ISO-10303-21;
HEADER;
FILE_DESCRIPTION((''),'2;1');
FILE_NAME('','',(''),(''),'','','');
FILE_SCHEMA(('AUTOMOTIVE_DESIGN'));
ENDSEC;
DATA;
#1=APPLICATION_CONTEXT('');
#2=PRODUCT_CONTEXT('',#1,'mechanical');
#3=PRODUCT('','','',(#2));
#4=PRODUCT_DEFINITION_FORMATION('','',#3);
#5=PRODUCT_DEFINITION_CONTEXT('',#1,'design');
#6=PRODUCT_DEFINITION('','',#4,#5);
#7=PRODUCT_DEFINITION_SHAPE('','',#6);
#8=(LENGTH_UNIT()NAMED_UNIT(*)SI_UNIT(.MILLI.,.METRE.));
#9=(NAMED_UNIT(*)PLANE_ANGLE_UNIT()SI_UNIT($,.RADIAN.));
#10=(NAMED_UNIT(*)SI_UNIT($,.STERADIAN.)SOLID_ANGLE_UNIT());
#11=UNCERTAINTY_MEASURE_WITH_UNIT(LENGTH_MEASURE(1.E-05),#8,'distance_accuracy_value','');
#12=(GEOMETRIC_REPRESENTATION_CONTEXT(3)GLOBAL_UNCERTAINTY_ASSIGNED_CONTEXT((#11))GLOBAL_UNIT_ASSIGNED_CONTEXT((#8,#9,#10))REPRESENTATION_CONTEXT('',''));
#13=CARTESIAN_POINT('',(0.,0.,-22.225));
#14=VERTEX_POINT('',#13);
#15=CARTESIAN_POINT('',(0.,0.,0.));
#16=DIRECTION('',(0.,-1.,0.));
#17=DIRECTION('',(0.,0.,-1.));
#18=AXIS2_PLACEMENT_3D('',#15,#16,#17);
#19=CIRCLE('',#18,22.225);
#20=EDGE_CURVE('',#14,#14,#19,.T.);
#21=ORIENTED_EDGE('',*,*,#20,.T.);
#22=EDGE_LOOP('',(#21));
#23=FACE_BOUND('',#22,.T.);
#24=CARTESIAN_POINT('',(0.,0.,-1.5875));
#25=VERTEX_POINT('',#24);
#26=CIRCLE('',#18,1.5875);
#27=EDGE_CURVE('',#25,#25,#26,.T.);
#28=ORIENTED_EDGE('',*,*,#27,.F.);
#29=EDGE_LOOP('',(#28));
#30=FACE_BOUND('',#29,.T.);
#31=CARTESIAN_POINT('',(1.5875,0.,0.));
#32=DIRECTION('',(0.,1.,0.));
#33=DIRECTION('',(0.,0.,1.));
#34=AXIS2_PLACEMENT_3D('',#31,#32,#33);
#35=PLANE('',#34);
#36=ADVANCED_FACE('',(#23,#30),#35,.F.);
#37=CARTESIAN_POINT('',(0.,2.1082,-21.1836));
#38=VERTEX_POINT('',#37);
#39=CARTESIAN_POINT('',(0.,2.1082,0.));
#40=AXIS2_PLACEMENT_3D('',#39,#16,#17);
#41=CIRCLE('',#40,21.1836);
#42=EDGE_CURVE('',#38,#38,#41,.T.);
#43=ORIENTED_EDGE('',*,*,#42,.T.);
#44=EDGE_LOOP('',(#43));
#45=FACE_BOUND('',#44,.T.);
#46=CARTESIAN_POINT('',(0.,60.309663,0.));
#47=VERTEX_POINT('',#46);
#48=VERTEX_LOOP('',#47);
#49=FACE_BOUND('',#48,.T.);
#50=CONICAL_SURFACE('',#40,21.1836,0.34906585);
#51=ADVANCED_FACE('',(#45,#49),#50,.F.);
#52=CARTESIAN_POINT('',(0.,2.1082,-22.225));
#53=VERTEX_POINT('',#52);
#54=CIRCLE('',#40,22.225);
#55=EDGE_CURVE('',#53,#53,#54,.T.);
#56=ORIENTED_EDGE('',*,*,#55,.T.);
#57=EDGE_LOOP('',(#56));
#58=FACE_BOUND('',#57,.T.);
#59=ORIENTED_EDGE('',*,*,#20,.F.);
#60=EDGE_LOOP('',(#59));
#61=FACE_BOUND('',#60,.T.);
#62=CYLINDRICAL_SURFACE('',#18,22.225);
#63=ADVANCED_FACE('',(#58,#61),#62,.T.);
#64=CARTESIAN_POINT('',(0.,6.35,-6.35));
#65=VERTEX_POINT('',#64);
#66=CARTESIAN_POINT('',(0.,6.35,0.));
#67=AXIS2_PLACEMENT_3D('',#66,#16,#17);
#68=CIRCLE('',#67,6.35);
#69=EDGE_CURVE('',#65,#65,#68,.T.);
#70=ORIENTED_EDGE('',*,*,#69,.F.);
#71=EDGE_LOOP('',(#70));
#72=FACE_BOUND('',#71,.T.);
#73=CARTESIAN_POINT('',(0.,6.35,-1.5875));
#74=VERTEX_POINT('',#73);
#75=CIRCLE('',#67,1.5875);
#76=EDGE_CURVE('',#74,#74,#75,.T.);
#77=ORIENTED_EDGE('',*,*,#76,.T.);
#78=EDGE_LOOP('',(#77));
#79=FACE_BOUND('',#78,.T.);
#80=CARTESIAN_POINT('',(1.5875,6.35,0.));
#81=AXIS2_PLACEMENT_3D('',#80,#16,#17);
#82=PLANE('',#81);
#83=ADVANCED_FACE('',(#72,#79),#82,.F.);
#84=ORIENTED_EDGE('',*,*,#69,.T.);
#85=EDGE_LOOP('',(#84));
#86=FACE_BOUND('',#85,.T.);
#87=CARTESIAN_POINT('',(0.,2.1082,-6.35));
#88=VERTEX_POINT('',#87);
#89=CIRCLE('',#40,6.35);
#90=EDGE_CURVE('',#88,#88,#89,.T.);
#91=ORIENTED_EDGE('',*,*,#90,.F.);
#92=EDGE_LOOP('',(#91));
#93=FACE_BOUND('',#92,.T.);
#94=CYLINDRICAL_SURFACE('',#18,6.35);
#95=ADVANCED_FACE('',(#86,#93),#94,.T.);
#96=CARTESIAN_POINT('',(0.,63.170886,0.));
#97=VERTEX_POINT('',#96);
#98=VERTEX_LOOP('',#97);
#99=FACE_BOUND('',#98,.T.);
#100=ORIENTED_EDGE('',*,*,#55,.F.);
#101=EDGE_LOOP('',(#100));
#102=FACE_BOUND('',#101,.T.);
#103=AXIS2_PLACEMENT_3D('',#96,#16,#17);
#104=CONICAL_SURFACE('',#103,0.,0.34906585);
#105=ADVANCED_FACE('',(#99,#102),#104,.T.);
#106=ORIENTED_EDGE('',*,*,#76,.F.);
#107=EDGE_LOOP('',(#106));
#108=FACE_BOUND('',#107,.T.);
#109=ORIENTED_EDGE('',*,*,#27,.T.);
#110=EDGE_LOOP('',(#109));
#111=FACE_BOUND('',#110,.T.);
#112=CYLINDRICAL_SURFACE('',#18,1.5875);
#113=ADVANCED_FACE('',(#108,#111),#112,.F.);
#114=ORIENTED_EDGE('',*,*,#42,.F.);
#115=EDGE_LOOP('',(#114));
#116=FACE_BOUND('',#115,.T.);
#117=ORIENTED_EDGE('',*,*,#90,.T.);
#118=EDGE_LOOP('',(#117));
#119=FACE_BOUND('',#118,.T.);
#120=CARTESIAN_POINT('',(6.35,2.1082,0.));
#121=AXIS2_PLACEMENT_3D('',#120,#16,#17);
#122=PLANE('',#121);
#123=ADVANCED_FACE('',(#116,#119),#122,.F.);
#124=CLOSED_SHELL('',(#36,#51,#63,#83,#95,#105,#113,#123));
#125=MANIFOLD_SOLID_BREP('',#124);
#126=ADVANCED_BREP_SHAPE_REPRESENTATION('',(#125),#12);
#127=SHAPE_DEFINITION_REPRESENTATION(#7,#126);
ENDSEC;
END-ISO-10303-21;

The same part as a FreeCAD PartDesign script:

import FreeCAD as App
import Part
import Sketcher

V = App.Vector
Q = App.Units.Quantity


def add_polygon(sketch, points):
    """Adds a closed chain of lines whose ends are joined by coincident constraints."""
    first, n = sketch.GeometryCount, len(points)
    for a, b in zip(points, points[1:] + points[:1]):
        sketch.addGeometry(Part.LineSegment(App.Vector(*a, 0), App.Vector(*b, 0)), False)
    for i in range(n):
        sketch.addConstraint(Sketcher.Constraint("Coincident", first + i, 2, first + (i + 1) % n, 1))

doc = App.newDocument("Part")
params = doc.addObject("Spreadsheet::Sheet", "Params")
for row, (alias, value) in enumerate([
    ("sketch1_height", "0.25 in"),
    ("sketch1_width", "0.8125 in"),
    ("sketch1_width2", "0.1875 in"),
    ("sketch1_width3", "0.584 in"),
    ("sketch1_height2", "0.167 in"),
    ("revolution_angle", "360 deg"),
], start=1):
    params.set(f"A{row}", alias)
    params.set(f"B{row}", "=" + value)
    params.setAlias(f"B{row}", alias)

body = doc.addObject("PartDesign::Body", "Body")

# Sketch on XY plane
sketch1 = body.newObject("Sketcher::SketchObject", "Sketch")
sketch1.AttachmentSupport = (doc.getObject("XY_Plane"), [""])
sketch1.MapMode = "FlatFace"
add_polygon(sketch1, [(-22.2, 0), (-1.6, 0), (-1.6, 6.3), (-6.3, 6.3), (-6.3, 2.1), (-21.2, 2.1), (0, 60.3), (0, 63.2), (-22.2, 2.1)])  # lines 0-8
sketch1.addConstraint([
    Sketcher.Constraint("Horizontal", 0),
    Sketcher.Constraint("Vertical", 1),
    Sketcher.Constraint("Horizontal", 2),
    Sketcher.Constraint("Vertical", 3),
    Sketcher.Constraint("Horizontal", 4),
    Sketcher.Constraint("Vertical", 6),
    Sketcher.Constraint("Vertical", 8),
    Sketcher.Constraint("PointOnObject", 0, 2, -1),
    Sketcher.Constraint("PointOnObject", 5, 2, -2),
    Sketcher.Constraint("Parallel", 5, 7),
    Sketcher.Constraint("Horizontal", 4, 2, 7, 2),
    Sketcher.Constraint("Angle", 5, Q("70 deg")),
    Sketcher.Constraint("DistanceY", 1, 1, 1, 2, Q("0.25 in")),
    Sketcher.Constraint("DistanceX", 0, 1, 0, 2, Q("0.8125 in")),
    Sketcher.Constraint("DistanceX", 2, 2, 2, 1, Q("0.1875 in")),
    Sketcher.Constraint("DistanceX", 4, 2, 4, 1, Q("0.584 in")),
    Sketcher.Constraint("DistanceY", 3, 2, 3, 1, Q("0.167 in")),
    Sketcher.Constraint("DistanceX", 2, 2, -1, 1, Q("0.25 in")),
])
sketch1.setExpression("Constraints[21]", "Params.sketch1_height")
sketch1.setExpression("Constraints[22]", "Params.sketch1_width")
sketch1.setExpression("Constraints[23]", "Params.sketch1_width2")
sketch1.setExpression("Constraints[24]", "Params.sketch1_width3")
sketch1.setExpression("Constraints[25]", "Params.sketch1_height2")
revolution = body.newObject("PartDesign::Revolution", "Revolution")
revolution.Profile = sketch1
revolution.ReferenceAxis = (sketch1, ["V_Axis"])
revolution.setExpression("Angle", "Params.revolution_angle")

doc.recompute()
